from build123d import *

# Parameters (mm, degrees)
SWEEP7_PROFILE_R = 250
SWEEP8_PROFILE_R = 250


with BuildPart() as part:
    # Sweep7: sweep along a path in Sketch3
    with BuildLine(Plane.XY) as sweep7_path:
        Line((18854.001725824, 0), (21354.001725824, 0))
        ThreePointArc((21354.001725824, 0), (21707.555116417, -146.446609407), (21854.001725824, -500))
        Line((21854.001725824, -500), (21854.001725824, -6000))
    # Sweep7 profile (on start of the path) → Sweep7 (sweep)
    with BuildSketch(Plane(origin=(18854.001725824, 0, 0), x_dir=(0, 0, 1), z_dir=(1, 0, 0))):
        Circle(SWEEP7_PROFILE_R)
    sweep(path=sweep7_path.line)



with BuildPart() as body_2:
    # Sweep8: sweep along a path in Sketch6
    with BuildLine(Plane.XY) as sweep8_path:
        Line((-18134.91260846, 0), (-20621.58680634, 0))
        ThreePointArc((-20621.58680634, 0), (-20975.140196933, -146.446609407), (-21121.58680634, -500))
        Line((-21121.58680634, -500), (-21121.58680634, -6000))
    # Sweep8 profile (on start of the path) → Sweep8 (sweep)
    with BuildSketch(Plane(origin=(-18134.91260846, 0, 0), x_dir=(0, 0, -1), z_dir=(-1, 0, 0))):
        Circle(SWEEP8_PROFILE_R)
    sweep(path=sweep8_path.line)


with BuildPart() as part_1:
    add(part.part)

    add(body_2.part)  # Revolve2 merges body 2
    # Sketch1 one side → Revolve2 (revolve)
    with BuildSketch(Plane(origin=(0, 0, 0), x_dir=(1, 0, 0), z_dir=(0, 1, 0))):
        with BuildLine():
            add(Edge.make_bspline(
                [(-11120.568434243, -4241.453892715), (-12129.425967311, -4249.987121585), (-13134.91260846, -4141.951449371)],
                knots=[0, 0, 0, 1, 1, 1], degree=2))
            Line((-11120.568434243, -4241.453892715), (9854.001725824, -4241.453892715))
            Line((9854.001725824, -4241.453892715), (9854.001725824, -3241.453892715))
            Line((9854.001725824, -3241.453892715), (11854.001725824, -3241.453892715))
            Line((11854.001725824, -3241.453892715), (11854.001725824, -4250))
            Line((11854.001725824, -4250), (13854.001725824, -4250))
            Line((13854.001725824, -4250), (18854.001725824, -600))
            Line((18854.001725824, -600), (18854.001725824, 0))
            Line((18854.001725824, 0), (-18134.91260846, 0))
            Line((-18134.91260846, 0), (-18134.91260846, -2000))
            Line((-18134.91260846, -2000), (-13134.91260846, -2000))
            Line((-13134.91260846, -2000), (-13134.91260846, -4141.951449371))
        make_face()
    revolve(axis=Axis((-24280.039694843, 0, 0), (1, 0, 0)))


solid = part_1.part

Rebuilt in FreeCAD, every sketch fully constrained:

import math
import FreeCAD as App
import Part
import Sketcher
from FreeCAD import Vector
Q = App.Units.Quantity

doc = App.newDocument("Part")
body = doc.addObject("PartDesign::Body", "Body")

# Sketch on YZ plane
sketch1 = body.newObject("Sketcher::SketchObject", "Sketch")
sketch1.AttachmentSupport = (doc.getObject("YZ_Plane"), [""])
sketch1.MapMode = "FlatFace"
sketch1.AttachmentOffset = App.Placement(Vector(0, 0, 18854.001726), App.Rotation())
sketch1.addGeometry(Part.Circle(Vector(0, 0, 0), Vector(0, 0, 1), 250), False)
sketch1.addConstraint(Sketcher.Constraint("Coincident", 0, 3, -1, 1))
sketch1.addConstraint(Sketcher.Constraint("Diameter", 0, Q("500 mm")))

# Sketch on XY plane
sketch2 = body.newObject("Sketcher::SketchObject", "Sketch001")
sketch2.AttachmentSupport = (doc.getObject("XY_Plane"), [""])
sketch2.MapMode = "FlatFace"
sketch2.addGeometry(Part.LineSegment(Vector(18854, 0, 0), Vector(21354, 0, 0)), False)
sketch2.addGeometry(Part.ArcOfCircle(Part.Circle(Vector(21354, -500, 0), Vector(0, 0, 1), 500), math.radians(0), math.radians(90)), False)
sketch2.addGeometry(Part.LineSegment(Vector(21854, -500, 0), Vector(21854, -6000, 0)), False)
sketch2.addConstraint(Sketcher.Constraint("Tangent", 0, 2, 1, 2))
sketch2.addConstraint(Sketcher.Constraint("Tangent", 1, 1, 2, 1))
sketch2.addConstraint(Sketcher.Constraint("Horizontal", 0))
sketch2.addConstraint(Sketcher.Constraint("Vertical", 2))
sketch2.addConstraint(Sketcher.Constraint("PointOnObject", 0, 1, -1))
sketch2.addConstraint(Sketcher.Constraint("Radius", 1, Q("500 mm")))
sketch2.addConstraint(Sketcher.Constraint("DistanceX", 0, 1, 0, 2, Q("2500 mm")))
sketch2.addConstraint(Sketcher.Constraint("DistanceY", 2, 2, 2, 1, Q("5500 mm")))
sketch2.addConstraint(Sketcher.Constraint("DistanceX", -1, 1, 1, 3, Q("21354.001726 mm")))
doc.recompute()

additivepipe = body.newObject("PartDesign::AdditivePipe", "AdditivePipe")
additivepipe.Profile = sketch1
additivepipe.Spine = (sketch2, ["Edge1", "Edge2", "Edge3"])
body2 = doc.addObject("PartDesign::Body", "Body001")

# Sketch on YZ plane
sketch3 = body2.newObject("Sketcher::SketchObject", "Sketch002")
sketch3.AttachmentSupport = (doc.getObject("YZ_Plane001"), [""])
sketch3.MapMode = "FlatFace"
sketch3.AttachmentOffset = App.Placement(Vector(0, 0, -18134.912608), App.Rotation())
sketch3.addGeometry(Part.Circle(Vector(0, 0, 0), Vector(0, 0, 1), 250), False)
sketch3.addConstraint(Sketcher.Constraint("Coincident", 0, 3, -1, 1))
sketch3.addConstraint(Sketcher.Constraint("Diameter", 0, Q("500 mm")))

# Sketch on XY plane
sketch4 = body2.newObject("Sketcher::SketchObject", "Sketch003")
sketch4.AttachmentSupport = (doc.getObject("XY_Plane001"), [""])
sketch4.MapMode = "FlatFace"
sketch4.addGeometry(Part.LineSegment(Vector(-18135, 0, 0), Vector(-20622, 0, 0)), False)
sketch4.addGeometry(Part.ArcOfCircle(Part.Circle(Vector(-20622, -500, 0), Vector(0, 0, 1), 500), math.radians(90), math.radians(180)), False)
sketch4.addGeometry(Part.LineSegment(Vector(-21122, -500, 0), Vector(-21122, -6000, 0)), False)
sketch4.addConstraint(Sketcher.Constraint("Tangent", 0, 2, 1, 1))
sketch4.addConstraint(Sketcher.Constraint("Tangent", 1, 2, 2, 1))
sketch4.addConstraint(Sketcher.Constraint("Horizontal", 0))
sketch4.addConstraint(Sketcher.Constraint("Vertical", 2))
sketch4.addConstraint(Sketcher.Constraint("PointOnObject", 0, 1, -1))
sketch4.addConstraint(Sketcher.Constraint("Radius", 1, Q("500 mm")))
sketch4.addConstraint(Sketcher.Constraint("DistanceY", 2, 2, 2, 1, Q("5500 mm")))
sketch4.addConstraint(Sketcher.Constraint("DistanceX", 0, 2, 0, 1, Q("2486.674198 mm")))
sketch4.addConstraint(Sketcher.Constraint("DistanceX", 0, 1, -1, 1, Q("18134.912608 mm")))
doc.recompute()

additivepipe2 = body2.newObject("PartDesign::AdditivePipe", "AdditivePipe001")
additivepipe2.Profile = sketch3
additivepipe2.Spine = (sketch4, ["Edge1", "Edge2", "Edge3"])
body.AllowCompound = True
doc.recompute()

boolean = body.newObject("PartDesign::Boolean", "Boolean")
boolean.Type = "Fuse"
boolean.addObjects([body2])

# Sketch on XZ plane
sketch5 = body.newObject("Sketcher::SketchObject", "Sketch004")
sketch5.AttachmentSupport = (doc.getObject("XZ_Plane"), [""])
sketch5.MapMode = "FlatFace"
sketch5.addGeometry(Part.BSplineCurve([Vector(-11120.568434, 4241.453893, 0), Vector(-12129.425967, 4249.987122, 0), Vector(-13134.912608, 4141.951449, 0)], [3, 3], [0, 1], False, 2, [1, 1, 1], False), False)
sketch5.addGeometry(Part.LineSegment(Vector(-11120.568434, 4241.453893, 0), Vector(9854.001726, 4241.453893, 0)), False)
sketch5.addGeometry(Part.LineSegment(Vector(9854.001726, 4241.453893, 0), Vector(9854.001726, 3241.453893, 0)), False)
sketch5.addGeometry(Part.LineSegment(Vector(9854.001726, 3241.453893, 0), Vector(11854.001726, 3241.453893, 0)), False)
sketch5.addGeometry(Part.LineSegment(Vector(11854.001726, 3241.453893, 0), Vector(11854.001726, 4250, 0)), False)
sketch5.addGeometry(Part.LineSegment(Vector(11854.001726, 4250, 0), Vector(13854.001726, 4250, 0)), False)
sketch5.addGeometry(Part.LineSegment(Vector(13854.001726, 4250, 0), Vector(18854.001726, 600, 0)), False)
sketch5.addGeometry(Part.LineSegment(Vector(18854.001726, 600, 0), Vector(18854.001726, 0, 0)), False)
sketch5.addGeometry(Part.LineSegment(Vector(18854.001726, 0, 0), Vector(-18134.912608, 0, 0)), False)
sketch5.addGeometry(Part.LineSegment(Vector(-18134.912608, 0, 0), Vector(-18134.912608, 2000, 0)), False)
sketch5.addGeometry(Part.LineSegment(Vector(-18134.912608, 2000, 0), Vector(-13134.912608, 2000, 0)), False)
sketch5.addGeometry(Part.LineSegment(Vector(-13134.912608, 2000, 0), Vector(-13134.912608, 4141.951449, 0)), False)
sketch5.addConstraint(Sketcher.Constraint("Block", 0))
sketch5.addConstraint(Sketcher.Constraint("Coincident", 0, 1, 1, 1))
sketch5.addConstraint(Sketcher.Constraint("Coincident", 1, 2, 2, 1))
sketch5.addConstraint(Sketcher.Constraint("Coincident", 2, 2, 3, 1))
sketch5.addConstraint(Sketcher.Constraint("Coincident", 3, 2, 4, 1))
sketch5.addConstraint(Sketcher.Constraint("Coincident", 4, 2, 5, 1))
sketch5.addConstraint(Sketcher.Constraint("Coincident", 5, 2, 6, 1))
sketch5.addConstraint(Sketcher.Constraint("Coincident", 6, 2, 7, 1))
sketch5.addConstraint(Sketcher.Constraint("Coincident", 7, 2, 8, 1))
sketch5.addConstraint(Sketcher.Constraint("Coincident", 8, 2, 9, 1))
sketch5.addConstraint(Sketcher.Constraint("Coincident", 9, 2, 10, 1))
sketch5.addConstraint(Sketcher.Constraint("Coincident", 10, 2, 11, 1))
sketch5.addConstraint(Sketcher.Constraint("Coincident", 11, 2, 0, 2))
sketch5.addConstraint(Sketcher.Constraint("Horizontal", 1))
sketch5.addConstraint(Sketcher.Constraint("Vertical", 2))
sketch5.addConstraint(Sketcher.Constraint("Horizontal", 3))
sketch5.addConstraint(Sketcher.Constraint("Vertical", 4))
sketch5.addConstraint(Sketcher.Constraint("Horizontal", 5))
sketch5.addConstraint(Sketcher.Constraint("Vertical", 7))
sketch5.addConstraint(Sketcher.Constraint("Horizontal", 8))
sketch5.addConstraint(Sketcher.Constraint("Vertical", 9))
sketch5.addConstraint(Sketcher.Constraint("Horizontal", 10))
sketch5.addConstraint(Sketcher.Constraint("Vertical", 11))
sketch5.addConstraint(Sketcher.Constraint("PointOnObject", 7, 2, -1))
sketch5.addConstraint(Sketcher.Constraint("Equal", 3, 5))
sketch5.addConstraint(Sketcher.Constraint("Equal", 5, 9))
sketch5.addConstraint(Sketcher.Constraint("DistanceX", 3, 1, 3, 2, Q("2000 mm")))
sketch5.addConstraint(Sketcher.Constraint("DistanceX", 10, 1, 10, 2, Q("5000 mm")))
sketch5.addConstraint(Sketcher.Constraint("DistanceY", 2, 2, 2, 1, Q("1000 mm")))
sketch5.addConstraint(Sketcher.Constraint("DistanceY", 7, 2, 7, 1, Q("600 mm")))
sketch5.addConstraint(Sketcher.Constraint("DistanceY", -1, 1, 4, 2, Q("4250 mm")))
sketch5.addConstraint(Sketcher.Constraint("DistanceX", 5, 2, 6, 2, Q("5000 mm")))
sketch5.addConstraint(Sketcher.Constraint("DistanceX", 1, 1, 1, 2, Q("20974.57016 mm")))
revolution = body.newObject("PartDesign::Revolution", "Revolution")
revolution.Profile = sketch5
revolution.ReferenceAxis = (sketch5, ["H_Axis"])
revolution.Angle = 360

doc.recompute()
